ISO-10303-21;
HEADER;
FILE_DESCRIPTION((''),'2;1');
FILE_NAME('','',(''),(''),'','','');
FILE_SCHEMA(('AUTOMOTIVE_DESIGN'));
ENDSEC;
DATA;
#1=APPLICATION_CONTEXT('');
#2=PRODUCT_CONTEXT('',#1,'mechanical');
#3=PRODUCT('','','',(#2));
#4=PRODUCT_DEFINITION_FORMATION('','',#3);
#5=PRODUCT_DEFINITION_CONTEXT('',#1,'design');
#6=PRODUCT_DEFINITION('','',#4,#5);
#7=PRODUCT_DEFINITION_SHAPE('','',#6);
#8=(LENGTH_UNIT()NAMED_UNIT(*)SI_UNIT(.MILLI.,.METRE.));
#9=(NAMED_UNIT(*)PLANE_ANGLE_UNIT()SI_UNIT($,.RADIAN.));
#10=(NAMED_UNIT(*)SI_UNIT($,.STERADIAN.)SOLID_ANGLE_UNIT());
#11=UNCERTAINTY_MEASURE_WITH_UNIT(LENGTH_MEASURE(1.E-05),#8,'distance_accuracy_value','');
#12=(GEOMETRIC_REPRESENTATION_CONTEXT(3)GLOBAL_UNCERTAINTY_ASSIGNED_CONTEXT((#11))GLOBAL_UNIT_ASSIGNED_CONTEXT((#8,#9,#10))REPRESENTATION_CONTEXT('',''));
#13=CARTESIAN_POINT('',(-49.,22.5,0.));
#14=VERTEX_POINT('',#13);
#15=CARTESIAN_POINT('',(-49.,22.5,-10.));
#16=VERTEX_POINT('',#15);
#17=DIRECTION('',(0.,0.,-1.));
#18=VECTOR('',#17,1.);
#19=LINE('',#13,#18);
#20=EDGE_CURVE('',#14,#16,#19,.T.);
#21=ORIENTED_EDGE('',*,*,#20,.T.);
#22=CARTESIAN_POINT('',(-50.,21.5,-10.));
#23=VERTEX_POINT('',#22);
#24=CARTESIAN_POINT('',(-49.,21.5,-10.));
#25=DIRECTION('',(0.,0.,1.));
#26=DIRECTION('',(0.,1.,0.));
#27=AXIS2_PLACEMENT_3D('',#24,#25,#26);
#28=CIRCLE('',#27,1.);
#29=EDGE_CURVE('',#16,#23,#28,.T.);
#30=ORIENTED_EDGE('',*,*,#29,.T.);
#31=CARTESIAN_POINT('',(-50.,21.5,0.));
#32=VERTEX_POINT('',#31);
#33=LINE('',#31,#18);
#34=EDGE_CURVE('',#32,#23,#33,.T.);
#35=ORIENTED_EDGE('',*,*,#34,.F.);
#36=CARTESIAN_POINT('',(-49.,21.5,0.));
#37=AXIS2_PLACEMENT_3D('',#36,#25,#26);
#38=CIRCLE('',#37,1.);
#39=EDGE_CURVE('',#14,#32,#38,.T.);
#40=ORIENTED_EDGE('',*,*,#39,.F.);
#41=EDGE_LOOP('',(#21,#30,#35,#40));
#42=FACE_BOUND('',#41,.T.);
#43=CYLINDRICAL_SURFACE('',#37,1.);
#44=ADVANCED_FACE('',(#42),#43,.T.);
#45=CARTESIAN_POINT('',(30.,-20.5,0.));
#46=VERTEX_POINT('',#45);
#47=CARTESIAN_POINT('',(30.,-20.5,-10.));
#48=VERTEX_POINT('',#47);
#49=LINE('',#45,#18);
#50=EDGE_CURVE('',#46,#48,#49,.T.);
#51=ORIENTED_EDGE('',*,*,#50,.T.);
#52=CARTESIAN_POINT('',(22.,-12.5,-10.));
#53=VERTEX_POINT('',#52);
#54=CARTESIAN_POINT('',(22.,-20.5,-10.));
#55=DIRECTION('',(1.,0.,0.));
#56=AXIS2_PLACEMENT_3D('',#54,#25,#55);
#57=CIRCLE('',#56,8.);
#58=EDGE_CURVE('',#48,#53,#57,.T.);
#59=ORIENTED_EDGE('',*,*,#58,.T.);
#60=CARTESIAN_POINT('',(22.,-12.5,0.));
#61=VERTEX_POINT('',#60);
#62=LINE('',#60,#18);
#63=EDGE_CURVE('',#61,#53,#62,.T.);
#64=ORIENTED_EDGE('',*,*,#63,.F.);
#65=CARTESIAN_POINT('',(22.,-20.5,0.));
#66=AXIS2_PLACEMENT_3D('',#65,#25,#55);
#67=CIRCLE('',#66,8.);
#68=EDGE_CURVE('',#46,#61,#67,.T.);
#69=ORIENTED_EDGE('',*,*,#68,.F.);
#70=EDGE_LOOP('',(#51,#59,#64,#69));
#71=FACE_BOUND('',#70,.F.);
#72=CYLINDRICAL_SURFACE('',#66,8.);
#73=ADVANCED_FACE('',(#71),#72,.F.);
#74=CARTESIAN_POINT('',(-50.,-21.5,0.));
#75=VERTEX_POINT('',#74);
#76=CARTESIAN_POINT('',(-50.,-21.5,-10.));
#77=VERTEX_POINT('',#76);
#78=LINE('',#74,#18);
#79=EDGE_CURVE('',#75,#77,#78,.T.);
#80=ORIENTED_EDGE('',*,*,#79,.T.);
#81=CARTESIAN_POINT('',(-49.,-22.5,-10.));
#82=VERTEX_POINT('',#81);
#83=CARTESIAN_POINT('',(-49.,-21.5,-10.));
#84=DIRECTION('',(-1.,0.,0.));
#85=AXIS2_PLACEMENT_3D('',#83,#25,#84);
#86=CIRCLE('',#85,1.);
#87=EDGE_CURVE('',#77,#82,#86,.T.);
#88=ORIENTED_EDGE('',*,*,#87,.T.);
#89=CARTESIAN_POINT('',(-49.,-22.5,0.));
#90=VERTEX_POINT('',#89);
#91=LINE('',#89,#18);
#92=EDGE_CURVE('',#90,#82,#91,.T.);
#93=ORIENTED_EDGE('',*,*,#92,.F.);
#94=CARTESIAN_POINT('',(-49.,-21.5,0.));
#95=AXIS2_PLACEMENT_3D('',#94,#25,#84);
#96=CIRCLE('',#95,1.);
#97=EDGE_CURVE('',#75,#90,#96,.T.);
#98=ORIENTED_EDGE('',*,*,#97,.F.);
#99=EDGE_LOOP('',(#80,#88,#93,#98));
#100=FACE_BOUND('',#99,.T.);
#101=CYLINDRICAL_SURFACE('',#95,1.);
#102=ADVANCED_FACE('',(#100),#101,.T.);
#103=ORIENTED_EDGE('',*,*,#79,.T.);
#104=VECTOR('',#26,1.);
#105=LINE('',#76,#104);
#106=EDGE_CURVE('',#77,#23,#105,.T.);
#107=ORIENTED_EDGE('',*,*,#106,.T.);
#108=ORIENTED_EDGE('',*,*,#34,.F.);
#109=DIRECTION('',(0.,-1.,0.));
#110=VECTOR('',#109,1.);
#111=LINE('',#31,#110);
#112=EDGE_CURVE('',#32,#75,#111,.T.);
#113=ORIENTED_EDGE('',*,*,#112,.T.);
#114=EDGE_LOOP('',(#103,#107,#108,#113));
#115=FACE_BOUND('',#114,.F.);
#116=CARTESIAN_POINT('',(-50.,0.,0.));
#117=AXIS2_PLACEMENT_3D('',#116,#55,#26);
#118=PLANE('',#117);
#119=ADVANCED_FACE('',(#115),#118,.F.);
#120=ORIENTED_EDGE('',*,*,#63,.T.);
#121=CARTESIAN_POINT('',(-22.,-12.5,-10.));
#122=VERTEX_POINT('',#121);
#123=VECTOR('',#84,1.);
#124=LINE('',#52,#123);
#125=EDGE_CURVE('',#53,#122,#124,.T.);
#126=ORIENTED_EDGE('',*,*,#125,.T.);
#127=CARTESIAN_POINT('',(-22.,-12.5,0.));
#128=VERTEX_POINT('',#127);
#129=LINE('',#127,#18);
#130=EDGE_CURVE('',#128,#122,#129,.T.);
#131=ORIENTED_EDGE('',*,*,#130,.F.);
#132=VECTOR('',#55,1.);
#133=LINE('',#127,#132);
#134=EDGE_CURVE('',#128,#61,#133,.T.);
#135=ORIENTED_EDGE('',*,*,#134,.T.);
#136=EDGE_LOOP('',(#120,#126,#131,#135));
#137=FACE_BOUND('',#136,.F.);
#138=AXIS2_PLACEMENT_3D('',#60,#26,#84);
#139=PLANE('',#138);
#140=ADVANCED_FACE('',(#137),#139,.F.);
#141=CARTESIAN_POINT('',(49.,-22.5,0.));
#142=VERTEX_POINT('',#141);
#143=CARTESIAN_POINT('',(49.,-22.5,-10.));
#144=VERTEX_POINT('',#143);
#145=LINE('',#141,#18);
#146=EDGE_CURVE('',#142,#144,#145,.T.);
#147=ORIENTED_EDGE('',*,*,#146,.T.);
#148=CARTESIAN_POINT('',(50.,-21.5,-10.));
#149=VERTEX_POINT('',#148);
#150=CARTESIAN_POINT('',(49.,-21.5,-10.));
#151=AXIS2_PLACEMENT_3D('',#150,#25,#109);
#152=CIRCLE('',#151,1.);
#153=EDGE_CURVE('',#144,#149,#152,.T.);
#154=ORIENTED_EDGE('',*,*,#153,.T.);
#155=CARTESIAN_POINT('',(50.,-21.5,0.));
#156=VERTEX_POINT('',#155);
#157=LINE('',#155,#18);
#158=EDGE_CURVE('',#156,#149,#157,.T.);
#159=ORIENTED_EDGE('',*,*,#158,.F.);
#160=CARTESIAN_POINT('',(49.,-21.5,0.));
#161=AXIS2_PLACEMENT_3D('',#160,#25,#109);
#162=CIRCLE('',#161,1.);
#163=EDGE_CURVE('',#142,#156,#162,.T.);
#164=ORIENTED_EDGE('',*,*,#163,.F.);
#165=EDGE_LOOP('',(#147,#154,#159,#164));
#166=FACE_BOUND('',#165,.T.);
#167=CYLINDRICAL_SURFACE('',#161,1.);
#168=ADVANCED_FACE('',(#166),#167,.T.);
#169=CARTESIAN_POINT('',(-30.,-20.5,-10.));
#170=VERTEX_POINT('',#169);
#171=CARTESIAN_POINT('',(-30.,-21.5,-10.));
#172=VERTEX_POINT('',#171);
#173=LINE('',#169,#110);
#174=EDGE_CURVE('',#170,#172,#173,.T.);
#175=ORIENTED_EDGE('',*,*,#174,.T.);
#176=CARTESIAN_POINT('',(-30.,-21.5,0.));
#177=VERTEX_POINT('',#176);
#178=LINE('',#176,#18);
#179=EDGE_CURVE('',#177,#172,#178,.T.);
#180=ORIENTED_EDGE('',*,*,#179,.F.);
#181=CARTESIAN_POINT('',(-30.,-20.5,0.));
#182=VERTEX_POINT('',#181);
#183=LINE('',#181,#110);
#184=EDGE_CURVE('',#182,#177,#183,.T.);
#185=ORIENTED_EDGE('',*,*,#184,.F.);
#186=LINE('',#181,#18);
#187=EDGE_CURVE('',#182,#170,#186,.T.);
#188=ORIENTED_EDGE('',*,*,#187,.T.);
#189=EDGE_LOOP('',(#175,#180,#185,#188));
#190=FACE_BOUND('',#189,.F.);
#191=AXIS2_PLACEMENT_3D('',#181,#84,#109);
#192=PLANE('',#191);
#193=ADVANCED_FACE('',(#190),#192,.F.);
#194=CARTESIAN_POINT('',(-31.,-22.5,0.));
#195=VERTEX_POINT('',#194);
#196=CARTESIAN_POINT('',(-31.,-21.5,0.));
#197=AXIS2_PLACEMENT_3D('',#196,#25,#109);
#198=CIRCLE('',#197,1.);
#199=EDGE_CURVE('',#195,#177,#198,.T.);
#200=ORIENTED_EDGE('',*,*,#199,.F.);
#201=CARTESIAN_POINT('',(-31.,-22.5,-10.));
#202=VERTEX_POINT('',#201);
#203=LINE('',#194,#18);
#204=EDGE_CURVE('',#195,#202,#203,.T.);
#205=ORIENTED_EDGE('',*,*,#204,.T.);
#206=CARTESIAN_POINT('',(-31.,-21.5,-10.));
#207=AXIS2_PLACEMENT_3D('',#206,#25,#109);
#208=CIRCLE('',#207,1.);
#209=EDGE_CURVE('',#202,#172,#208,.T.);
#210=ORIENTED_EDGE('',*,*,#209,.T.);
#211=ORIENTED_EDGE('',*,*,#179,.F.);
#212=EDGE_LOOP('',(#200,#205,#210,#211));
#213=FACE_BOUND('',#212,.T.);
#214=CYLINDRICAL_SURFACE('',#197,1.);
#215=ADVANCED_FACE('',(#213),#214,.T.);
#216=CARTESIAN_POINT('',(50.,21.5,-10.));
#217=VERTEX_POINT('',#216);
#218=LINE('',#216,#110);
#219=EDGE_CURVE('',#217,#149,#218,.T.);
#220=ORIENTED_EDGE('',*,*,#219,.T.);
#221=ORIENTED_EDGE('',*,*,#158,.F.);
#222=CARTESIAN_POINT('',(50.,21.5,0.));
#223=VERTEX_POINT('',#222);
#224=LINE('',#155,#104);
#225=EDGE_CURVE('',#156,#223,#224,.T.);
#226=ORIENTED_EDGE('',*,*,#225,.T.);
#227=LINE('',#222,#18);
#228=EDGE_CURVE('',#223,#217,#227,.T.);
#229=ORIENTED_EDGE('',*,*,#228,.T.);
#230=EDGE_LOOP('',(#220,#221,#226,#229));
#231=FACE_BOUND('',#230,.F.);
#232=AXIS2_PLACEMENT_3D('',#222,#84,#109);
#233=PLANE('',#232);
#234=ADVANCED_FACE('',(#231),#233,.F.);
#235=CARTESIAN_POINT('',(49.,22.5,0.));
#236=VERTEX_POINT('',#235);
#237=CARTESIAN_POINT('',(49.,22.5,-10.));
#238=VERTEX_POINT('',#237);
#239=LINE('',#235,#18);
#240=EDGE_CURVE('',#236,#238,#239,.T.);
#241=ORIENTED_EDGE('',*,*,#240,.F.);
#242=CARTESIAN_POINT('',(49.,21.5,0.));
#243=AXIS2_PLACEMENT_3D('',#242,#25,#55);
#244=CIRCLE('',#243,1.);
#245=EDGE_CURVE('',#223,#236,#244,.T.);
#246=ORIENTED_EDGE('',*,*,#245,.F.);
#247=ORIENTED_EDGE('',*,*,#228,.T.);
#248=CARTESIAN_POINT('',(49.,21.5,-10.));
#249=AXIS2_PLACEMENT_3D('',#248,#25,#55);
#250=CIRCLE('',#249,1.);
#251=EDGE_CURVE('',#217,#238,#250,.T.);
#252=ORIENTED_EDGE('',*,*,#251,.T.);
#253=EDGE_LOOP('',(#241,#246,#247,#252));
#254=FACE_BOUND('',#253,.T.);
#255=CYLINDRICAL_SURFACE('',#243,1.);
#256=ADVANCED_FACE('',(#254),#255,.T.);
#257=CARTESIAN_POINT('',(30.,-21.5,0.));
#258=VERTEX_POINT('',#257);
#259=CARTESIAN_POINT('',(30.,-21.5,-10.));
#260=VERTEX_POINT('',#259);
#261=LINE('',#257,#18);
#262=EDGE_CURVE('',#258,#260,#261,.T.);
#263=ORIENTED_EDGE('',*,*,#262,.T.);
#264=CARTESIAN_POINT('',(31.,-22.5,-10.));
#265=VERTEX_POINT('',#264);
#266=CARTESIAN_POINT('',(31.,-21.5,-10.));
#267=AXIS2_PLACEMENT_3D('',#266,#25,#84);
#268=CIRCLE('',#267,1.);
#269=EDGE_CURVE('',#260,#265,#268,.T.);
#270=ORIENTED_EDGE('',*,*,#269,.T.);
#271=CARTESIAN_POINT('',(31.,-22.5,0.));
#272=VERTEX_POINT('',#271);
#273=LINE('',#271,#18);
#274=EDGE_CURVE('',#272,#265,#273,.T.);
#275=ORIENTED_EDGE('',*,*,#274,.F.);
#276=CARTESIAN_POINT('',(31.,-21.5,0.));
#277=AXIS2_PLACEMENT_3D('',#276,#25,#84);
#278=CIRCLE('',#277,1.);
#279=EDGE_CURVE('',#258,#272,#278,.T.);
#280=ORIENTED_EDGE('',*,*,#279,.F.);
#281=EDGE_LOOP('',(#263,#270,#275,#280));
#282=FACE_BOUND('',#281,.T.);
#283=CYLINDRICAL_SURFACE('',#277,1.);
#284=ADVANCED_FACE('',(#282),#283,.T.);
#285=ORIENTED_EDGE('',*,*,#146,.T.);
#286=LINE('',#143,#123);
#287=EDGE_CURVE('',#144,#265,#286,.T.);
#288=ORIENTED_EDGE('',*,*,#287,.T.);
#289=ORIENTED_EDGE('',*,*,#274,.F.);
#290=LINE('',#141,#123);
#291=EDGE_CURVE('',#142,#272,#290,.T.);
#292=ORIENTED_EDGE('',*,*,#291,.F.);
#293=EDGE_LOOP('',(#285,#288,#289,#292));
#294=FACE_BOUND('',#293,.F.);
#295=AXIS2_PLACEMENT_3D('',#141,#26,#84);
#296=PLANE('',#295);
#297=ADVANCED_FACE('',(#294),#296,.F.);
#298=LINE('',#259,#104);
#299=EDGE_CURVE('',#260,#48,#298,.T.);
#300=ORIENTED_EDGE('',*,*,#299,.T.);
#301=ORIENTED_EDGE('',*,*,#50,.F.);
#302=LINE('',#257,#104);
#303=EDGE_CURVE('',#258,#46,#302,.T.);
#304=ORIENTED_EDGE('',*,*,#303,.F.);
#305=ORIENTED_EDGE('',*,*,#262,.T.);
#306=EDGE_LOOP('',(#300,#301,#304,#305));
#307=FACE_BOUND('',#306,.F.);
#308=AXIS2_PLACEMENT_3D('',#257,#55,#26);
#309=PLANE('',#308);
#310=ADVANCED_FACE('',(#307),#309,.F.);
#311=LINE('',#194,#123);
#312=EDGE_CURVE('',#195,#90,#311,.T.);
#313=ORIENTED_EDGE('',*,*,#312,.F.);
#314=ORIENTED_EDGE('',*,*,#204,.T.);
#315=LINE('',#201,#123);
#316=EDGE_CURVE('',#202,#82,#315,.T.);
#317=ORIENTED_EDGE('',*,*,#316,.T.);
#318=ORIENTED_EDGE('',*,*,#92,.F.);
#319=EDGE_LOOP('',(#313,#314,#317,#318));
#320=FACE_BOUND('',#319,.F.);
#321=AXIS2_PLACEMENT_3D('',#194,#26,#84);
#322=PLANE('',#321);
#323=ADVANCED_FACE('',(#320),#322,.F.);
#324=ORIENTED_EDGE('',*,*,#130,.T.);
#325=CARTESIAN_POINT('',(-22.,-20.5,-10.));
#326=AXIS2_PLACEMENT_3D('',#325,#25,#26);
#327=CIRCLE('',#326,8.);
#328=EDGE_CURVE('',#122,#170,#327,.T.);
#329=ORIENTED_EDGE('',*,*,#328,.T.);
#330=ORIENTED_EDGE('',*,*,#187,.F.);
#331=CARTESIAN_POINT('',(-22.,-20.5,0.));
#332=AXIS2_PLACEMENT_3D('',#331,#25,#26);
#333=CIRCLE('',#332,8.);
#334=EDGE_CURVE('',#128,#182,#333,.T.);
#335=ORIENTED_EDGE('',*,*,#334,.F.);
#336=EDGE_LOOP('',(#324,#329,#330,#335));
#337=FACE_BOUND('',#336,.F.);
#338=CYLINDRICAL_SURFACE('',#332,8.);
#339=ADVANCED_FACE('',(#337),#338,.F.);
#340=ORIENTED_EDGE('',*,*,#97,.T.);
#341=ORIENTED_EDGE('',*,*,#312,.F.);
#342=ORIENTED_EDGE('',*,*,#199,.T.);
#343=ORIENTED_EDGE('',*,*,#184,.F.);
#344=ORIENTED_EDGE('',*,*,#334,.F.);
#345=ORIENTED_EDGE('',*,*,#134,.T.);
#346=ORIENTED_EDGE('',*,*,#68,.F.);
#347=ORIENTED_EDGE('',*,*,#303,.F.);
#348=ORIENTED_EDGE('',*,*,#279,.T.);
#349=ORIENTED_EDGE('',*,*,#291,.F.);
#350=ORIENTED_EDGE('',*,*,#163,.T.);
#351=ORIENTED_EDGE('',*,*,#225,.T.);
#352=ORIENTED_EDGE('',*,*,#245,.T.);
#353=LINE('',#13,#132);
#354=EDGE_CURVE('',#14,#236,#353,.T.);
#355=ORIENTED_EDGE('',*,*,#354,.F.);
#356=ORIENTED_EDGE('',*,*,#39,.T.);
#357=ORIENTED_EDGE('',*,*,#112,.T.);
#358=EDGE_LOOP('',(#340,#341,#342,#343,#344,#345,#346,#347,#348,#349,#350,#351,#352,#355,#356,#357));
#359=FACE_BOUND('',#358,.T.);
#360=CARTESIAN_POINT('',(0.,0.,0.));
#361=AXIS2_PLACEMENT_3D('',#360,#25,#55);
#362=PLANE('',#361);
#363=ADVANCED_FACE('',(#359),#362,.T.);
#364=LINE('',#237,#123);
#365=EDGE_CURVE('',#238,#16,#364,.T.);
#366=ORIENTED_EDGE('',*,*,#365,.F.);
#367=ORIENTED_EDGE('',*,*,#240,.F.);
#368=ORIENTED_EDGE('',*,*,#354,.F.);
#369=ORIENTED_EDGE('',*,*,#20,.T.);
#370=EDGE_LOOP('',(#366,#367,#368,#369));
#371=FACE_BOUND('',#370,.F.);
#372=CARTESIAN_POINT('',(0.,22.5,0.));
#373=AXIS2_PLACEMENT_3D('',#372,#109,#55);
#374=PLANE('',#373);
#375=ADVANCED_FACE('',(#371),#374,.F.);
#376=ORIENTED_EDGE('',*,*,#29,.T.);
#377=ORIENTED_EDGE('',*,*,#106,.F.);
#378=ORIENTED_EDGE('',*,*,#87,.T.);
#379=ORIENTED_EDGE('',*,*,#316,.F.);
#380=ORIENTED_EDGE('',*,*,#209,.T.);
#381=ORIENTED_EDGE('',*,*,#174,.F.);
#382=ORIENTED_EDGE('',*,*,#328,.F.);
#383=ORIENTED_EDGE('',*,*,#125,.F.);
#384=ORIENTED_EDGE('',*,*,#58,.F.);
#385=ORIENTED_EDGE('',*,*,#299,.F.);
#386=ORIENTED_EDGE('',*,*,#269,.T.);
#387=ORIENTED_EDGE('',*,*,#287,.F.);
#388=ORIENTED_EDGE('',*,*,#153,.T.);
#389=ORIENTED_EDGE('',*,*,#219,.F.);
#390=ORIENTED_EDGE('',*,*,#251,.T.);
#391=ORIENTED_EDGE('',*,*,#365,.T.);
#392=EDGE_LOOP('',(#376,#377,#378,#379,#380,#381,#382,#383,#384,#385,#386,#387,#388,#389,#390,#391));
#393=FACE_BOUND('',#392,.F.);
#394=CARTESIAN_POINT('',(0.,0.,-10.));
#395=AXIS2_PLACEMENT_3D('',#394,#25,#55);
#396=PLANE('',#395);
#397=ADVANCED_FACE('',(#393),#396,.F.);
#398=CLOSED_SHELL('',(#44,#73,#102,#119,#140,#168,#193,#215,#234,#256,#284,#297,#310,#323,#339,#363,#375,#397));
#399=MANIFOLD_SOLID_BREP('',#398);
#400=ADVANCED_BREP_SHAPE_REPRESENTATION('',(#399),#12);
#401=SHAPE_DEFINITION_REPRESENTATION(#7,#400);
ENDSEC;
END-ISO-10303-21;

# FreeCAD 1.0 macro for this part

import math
import FreeCAD as App
import Part
import Sketcher

doc = App.newDocument("Part")
body = doc.addObject("PartDesign::Body", "Body")

sketch1 = body.newObject("Sketcher::SketchObject", "Sketch")
sketch1.AttachmentSupport = (doc.getObject("XY_Plane"), [""])
sketch1.MapMode = "FlatFace"
sketch1.addGeometry([
    Part.LineSegment(App.Vector(49, 22.5, 0), App.Vector(-49, 22.5, 0)),
    Part.ArcOfCircle(Part.Circle(App.Vector(-49, 21.5, 0), App.Vector(0, 0, 1), 1), math.radians(90), math.radians(180)),
    Part.LineSegment(App.Vector(-50, 21.5, 0), App.Vector(-50, -21.5, 0)),
    Part.ArcOfCircle(Part.Circle(App.Vector(-49, -21.5, 0), App.Vector(0, 0, 1), 1), math.radians(180), math.radians(270)),
    Part.LineSegment(App.Vector(-49, -22.5, 0), App.Vector(-31, -22.5, 0)),
    Part.ArcOfCircle(Part.Circle(App.Vector(-31, -21.5, 0), App.Vector(0, 0, 1), 1), math.radians(-90), math.radians(0)),
    Part.LineSegment(App.Vector(-30, -21.5, 0), App.Vector(-30, -20.5, 0)),
    Part.ArcOfCircle(Part.Circle(App.Vector(-22, -20.5, 0), App.Vector(0, 0, 1), 8), math.radians(90), math.radians(180)),
    Part.LineSegment(App.Vector(-22, -12.5, 0), App.Vector(22, -12.5, 0)),
    Part.ArcOfCircle(Part.Circle(App.Vector(22, -20.5, 0), App.Vector(0, 0, 1), 8), math.radians(0), math.radians(90)),
    Part.LineSegment(App.Vector(30, -20.5, 0), App.Vector(30, -21.5, 0)),
    Part.ArcOfCircle(Part.Circle(App.Vector(31, -21.5, 0), App.Vector(0, 0, 1), 1), math.radians(180), math.radians(270)),
    Part.LineSegment(App.Vector(31, -22.5, 0), App.Vector(49, -22.5, 0)),
    Part.ArcOfCircle(Part.Circle(App.Vector(49, -21.5, 0), App.Vector(0, 0, 1), 1), math.radians(-90), math.radians(0)),
    Part.LineSegment(App.Vector(50, -21.5, 0), App.Vector(50, 21.5, 0)),
    Part.ArcOfCircle(Part.Circle(App.Vector(49, 21.5, 0), App.Vector(0, 0, 1), 1), math.radians(0), math.radians(90)),
], False)
sketch1.addConstraint([
    Sketcher.Constraint("Tangent", 0, 2, 1, 1),
    Sketcher.Constraint("Tangent", 1, 2, 2, 1),
    Sketcher.Constraint("Tangent", 2, 2, 3, 1),
    Sketcher.Constraint("Tangent", 3, 2, 4, 1),
    Sketcher.Constraint("Tangent", 4, 2, 5, 1),
    Sketcher.Constraint("Tangent", 5, 2, 6, 1),
    Sketcher.Constraint("Tangent", 6, 2, 7, 2),
    Sketcher.Constraint("Tangent", 7, 1, 8, 1),
    Sketcher.Constraint("Tangent", 8, 2, 9, 2),
    Sketcher.Constraint("Tangent", 9, 1, 10, 1),
    Sketcher.Constraint("Tangent", 10, 2, 11, 1),
    Sketcher.Constraint("Tangent", 11, 2, 12, 1),
    Sketcher.Constraint("Tangent", 12, 2, 13, 1),
    Sketcher.Constraint("Tangent", 13, 2, 14, 1),
    Sketcher.Constraint("Tangent", 14, 2, 15, 1),
    Sketcher.Constraint("Tangent", 15, 2, 0, 1),
    Sketcher.Constraint("Horizontal", 0),
    Sketcher.Constraint("Vertical", 2),
    Sketcher.Constraint("Horizontal", 4),
    Sketcher.Constraint("Vertical", 6),
    Sketcher.Constraint("Horizontal", 8),
    Sketcher.Constraint("Vertical", 10),
    Sketcher.Constraint("Horizontal", 12),
    Sketcher.Constraint("Vertical", 14),
    Sketcher.Constraint("Equal", 1, 3),
    Sketcher.Constraint("Equal", 3, 5),
    Sketcher.Constraint("Equal", 7, 9),
    Sketcher.Constraint("Equal", 5, 11),
    Sketcher.Constraint("Equal", 11, 13),
    Sketcher.Constraint("Equal", 13, 15),
    Sketcher.Constraint("Symmetric", 1, 3, 13, 3, -1, 1),
    Sketcher.Constraint("Symmetric", 5, 3, 11, 3, -2),
    Sketcher.Constraint("Radius", 1, 1.0),
    Sketcher.Constraint("Radius", 7, 8.0),
    Sketcher.Constraint("DistanceY", 6, 1, 6, 2, 1.0),
    Sketcher.Constraint("DistanceX", 10, 2, 13, 2, 20.0),
    Sketcher.Constraint("DistanceX", 0, 2, 0, 1, 98.0),
    Sketcher.Constraint("DistanceY", 2, 2, 2, 1, 43.0),
])
pad1 = body.newObject("PartDesign::Pad", "Pad")
pad1.Profile = sketch1
pad1.Length = 10
pad1.Reversed = True

doc.recompute()
